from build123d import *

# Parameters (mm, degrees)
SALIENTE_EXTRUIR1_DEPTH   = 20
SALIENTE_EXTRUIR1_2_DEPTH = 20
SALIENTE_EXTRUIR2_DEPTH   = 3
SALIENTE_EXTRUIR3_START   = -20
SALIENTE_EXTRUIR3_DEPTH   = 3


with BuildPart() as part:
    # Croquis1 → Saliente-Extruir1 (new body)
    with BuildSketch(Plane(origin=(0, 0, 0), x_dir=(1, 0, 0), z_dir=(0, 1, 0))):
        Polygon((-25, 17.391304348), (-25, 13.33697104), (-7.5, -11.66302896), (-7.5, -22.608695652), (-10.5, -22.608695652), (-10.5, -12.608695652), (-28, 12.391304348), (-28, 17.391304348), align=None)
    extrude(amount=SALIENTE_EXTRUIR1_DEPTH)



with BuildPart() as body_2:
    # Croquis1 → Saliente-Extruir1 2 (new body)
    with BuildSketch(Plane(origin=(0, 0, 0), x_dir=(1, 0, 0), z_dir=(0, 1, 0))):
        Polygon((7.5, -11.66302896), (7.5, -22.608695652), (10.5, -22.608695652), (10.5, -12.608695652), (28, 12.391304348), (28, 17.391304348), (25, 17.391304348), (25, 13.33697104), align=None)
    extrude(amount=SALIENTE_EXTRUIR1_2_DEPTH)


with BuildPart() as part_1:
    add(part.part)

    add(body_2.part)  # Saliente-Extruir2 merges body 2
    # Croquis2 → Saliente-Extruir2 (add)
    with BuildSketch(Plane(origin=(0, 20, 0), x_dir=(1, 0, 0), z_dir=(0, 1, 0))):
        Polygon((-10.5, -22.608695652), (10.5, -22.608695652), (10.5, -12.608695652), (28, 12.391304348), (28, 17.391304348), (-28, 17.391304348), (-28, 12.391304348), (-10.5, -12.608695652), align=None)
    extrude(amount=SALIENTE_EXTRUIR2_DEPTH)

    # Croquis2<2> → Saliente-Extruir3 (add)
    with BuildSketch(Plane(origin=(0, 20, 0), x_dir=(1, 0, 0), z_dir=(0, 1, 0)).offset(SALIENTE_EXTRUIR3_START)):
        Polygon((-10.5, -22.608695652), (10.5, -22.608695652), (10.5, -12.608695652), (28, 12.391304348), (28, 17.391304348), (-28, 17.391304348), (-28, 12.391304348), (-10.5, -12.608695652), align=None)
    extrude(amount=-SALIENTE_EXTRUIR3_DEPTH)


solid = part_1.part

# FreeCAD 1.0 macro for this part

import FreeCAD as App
import Part
import Sketcher
from FreeCAD import Vector


def add_polygon(sketch, points):
    """Adds a closed chain of lines whose ends are joined by coincident constraints."""
    first, n = sketch.GeometryCount, len(points)
    for a, b in zip(points, points[1:] + points[:1]):
        sketch.addGeometry(Part.LineSegment(App.Vector(*a, 0), App.Vector(*b, 0)), False)
    for i in range(n):
        sketch.addConstraint(Sketcher.Constraint("Coincident", first + i, 2, first + (i + 1) % n, 1))

doc = App.newDocument("Part")
body = doc.addObject("PartDesign::Body", "Body")

# Sketch on XZ plane
sketch1 = body.newObject("Sketcher::SketchObject", "Sketch")
sketch1.AttachmentSupport = (doc.getObject("XZ_Plane"), [""])
sketch1.MapMode = "FlatFace"
add_polygon(sketch1, [(-25, -13.3), (-25, -17.4), (-28, -17.4), (-28, -12.4), (-10.5, 12.6), (-10.5, 22.6), (-7.5, 22.6), (-7.5, 11.7)])  # lines 0-7
sketch1.addConstraint([
    Sketcher.Constraint("Vertical", 0),
    Sketcher.Constraint("Horizontal", 1),
    Sketcher.Constraint("Vertical", 2),
    Sketcher.Constraint("Vertical", 4),
    Sketcher.Constraint("Horizontal", 5),
    Sketcher.Constraint("Vertical", 6),
    Sketcher.Constraint("Parallel", 3, 7),
    Sketcher.Constraint("Equal", 1, 5),
    Sketcher.Constraint("DistanceX", 1, 2, 1, 1, 3.0),
    Sketcher.Constraint("DistanceY", 2, 1, 2, 2, 5.0),
    Sketcher.Constraint("DistanceY", 4, 1, 4, 2, 10.0),
    Sketcher.Constraint("DistanceX", 0, 2, -1, 1, 25.0),
    Sketcher.Constraint("DistanceY", 2, 2, 3, 2, 25.0),
    Sketcher.Constraint("DistanceX", 3, 2, -1, 1, 10.5),
    Sketcher.Constraint("DistanceY", 0, 2, 0, 1, 4.054333),
    Sketcher.Constraint("DistanceY", -1, 1, 6, 2, 11.663029),
])
pad1 = body.newObject("PartDesign::Pad", "Pad")
pad1.Profile = sketch1
pad1.Length = 20
pad1.Reversed = True
body2 = doc.addObject("PartDesign::Body", "Body001")

# Sketch on XZ plane
sketch2 = body2.newObject("Sketcher::SketchObject", "Sketch001")
sketch2.AttachmentSupport = (doc.getObject("XZ_Plane001"), [""])
sketch2.MapMode = "FlatFace"
add_polygon(sketch2, [(7.5, 11.7), (7.5, 22.6), (10.5, 22.6), (10.5, 12.6), (28, -12.4), (28, -17.4), (25, -17.4), (25, -13.3)])  # lines 0-7
sketch2.addConstraint([
    Sketcher.Constraint("Vertical", 0),
    Sketcher.Constraint("Horizontal", 1),
    Sketcher.Constraint("Vertical", 2),
    Sketcher.Constraint("Vertical", 4),
    Sketcher.Constraint("Horizontal", 5),
    Sketcher.Constraint("Vertical", 6),
    Sketcher.Constraint("Parallel", 3, 7),
    Sketcher.Constraint("Equal", 1, 5),
    Sketcher.Constraint("DistanceX", 1, 1, 1, 2, 3.0),
    Sketcher.Constraint("DistanceY", 2, 2, 2, 1, 10.0),
    Sketcher.Constraint("DistanceY", 4, 2, 4, 1, 5.0),
    Sketcher.Constraint("DistanceX", -1, 1, 3, 2, 28.0),
    Sketcher.Constraint("DistanceY", 3, 2, 2, 2, 25.0),
    Sketcher.Constraint("DistanceX", -1, 1, 0, 2, 7.5),
    Sketcher.Constraint("DistanceY", 0, 1, 0, 2, 10.945667),
    Sketcher.Constraint("DistanceY", 6, 2, -1, 1, 13.336971),
])
pad2 = body2.newObject("PartDesign::Pad", "Pad001")
pad2.Profile = sketch2
pad2.Length = 20
pad2.Reversed = True
body.AllowCompound = True
doc.recompute()

boolean = body.newObject("PartDesign::Boolean", "Boolean")
boolean.Type = "Fuse"
boolean.addObjects([body2])

# Sketch on XZ plane
sketch3 = body.newObject("Sketcher::SketchObject", "Sketch002")
sketch3.AttachmentSupport = (doc.getObject("XZ_Plane"), [""])
sketch3.MapMode = "FlatFace"
sketch3.AttachmentOffset = App.Placement(Vector(0, 0, -20), App.Rotation())
add_polygon(sketch3, [(-10.5, 22.6), (10.5, 22.6), (10.5, 12.6), (28, -12.4), (28, -17.4), (-28, -17.4), (-28, -12.4), (-10.5, 12.6)])  # lines 0-7
sketch3.addConstraint([
    Sketcher.Constraint("Horizontal", 0),
    Sketcher.Constraint("Vertical", 1),
    Sketcher.Constraint("Vertical", 3),
    Sketcher.Constraint("Horizontal", 4),
    Sketcher.Constraint("Vertical", 5),
    Sketcher.Constraint("Vertical", 7),
    Sketcher.Constraint("Symmetric", 2, 2, 5, 2, -2),
    Sketcher.Constraint("Symmetric", 1, 2, 6, 2, -2),
    Sketcher.Constraint("DistanceX", 0, 1, 0, 2, 21.0),
    Sketcher.Constraint("DistanceX", 4, 2, 4, 1, 56.0),
    Sketcher.Constraint("DistanceY", 1, 2, 1, 1, 10.0),
    Sketcher.Constraint("DistanceY", 3, 2, 3, 1, 5.0),
    Sketcher.Constraint("DistanceY", 2, 2, 1, 2, 25.0),
    Sketcher.Constraint("DistanceY", -1, 1, 0, 2, 22.608696),
])
pad3 = body.newObject("PartDesign::Pad", "Pad002")
pad3.Profile = sketch3
pad3.Length = 3
pad3.Reversed = True

# Sketch on XZ plane
sketch4 = body.newObject("Sketcher::SketchObject", "Sketch003")
sketch4.AttachmentSupport = (doc.getObject("XZ_Plane"), [""])
sketch4.MapMode = "FlatFace"
add_polygon(sketch4, [(-10.5, 22.6), (10.5, 22.6), (10.5, 12.6), (28, -12.4), (28, -17.4), (-28, -17.4), (-28, -12.4), (-10.5, 12.6)])  # lines 0-7
sketch4.addConstraint([
    Sketcher.Constraint("Horizontal", 0),
    Sketcher.Constraint("Vertical", 1),
    Sketcher.Constraint("Vertical", 3),
    Sketcher.Constraint("Horizontal", 4),
    Sketcher.Constraint("Vertical", 5),
    Sketcher.Constraint("Vertical", 7),
    Sketcher.Constraint("Symmetric", 2, 2, 5, 2, -2),
    Sketcher.Constraint("Symmetric", 1, 2, 6, 2, -2),
    Sketcher.Constraint("DistanceX", 0, 1, 0, 2, 21.0),
    Sketcher.Constraint("DistanceX", 4, 2, 4, 1, 56.0),
    Sketcher.Constraint("DistanceY", 1, 2, 1, 1, 10.0),
    Sketcher.Constraint("DistanceY", 3, 2, 3, 1, 5.0),
    Sketcher.Constraint("DistanceY", 2, 2, 1, 2, 25.0),
    Sketcher.Constraint("DistanceY", -1, 1, 0, 2, 22.608696),
])
pad4 = body.newObject("PartDesign::Pad", "Pad003")
pad4.Profile = sketch4
pad4.Length = 3

doc.recompute()
